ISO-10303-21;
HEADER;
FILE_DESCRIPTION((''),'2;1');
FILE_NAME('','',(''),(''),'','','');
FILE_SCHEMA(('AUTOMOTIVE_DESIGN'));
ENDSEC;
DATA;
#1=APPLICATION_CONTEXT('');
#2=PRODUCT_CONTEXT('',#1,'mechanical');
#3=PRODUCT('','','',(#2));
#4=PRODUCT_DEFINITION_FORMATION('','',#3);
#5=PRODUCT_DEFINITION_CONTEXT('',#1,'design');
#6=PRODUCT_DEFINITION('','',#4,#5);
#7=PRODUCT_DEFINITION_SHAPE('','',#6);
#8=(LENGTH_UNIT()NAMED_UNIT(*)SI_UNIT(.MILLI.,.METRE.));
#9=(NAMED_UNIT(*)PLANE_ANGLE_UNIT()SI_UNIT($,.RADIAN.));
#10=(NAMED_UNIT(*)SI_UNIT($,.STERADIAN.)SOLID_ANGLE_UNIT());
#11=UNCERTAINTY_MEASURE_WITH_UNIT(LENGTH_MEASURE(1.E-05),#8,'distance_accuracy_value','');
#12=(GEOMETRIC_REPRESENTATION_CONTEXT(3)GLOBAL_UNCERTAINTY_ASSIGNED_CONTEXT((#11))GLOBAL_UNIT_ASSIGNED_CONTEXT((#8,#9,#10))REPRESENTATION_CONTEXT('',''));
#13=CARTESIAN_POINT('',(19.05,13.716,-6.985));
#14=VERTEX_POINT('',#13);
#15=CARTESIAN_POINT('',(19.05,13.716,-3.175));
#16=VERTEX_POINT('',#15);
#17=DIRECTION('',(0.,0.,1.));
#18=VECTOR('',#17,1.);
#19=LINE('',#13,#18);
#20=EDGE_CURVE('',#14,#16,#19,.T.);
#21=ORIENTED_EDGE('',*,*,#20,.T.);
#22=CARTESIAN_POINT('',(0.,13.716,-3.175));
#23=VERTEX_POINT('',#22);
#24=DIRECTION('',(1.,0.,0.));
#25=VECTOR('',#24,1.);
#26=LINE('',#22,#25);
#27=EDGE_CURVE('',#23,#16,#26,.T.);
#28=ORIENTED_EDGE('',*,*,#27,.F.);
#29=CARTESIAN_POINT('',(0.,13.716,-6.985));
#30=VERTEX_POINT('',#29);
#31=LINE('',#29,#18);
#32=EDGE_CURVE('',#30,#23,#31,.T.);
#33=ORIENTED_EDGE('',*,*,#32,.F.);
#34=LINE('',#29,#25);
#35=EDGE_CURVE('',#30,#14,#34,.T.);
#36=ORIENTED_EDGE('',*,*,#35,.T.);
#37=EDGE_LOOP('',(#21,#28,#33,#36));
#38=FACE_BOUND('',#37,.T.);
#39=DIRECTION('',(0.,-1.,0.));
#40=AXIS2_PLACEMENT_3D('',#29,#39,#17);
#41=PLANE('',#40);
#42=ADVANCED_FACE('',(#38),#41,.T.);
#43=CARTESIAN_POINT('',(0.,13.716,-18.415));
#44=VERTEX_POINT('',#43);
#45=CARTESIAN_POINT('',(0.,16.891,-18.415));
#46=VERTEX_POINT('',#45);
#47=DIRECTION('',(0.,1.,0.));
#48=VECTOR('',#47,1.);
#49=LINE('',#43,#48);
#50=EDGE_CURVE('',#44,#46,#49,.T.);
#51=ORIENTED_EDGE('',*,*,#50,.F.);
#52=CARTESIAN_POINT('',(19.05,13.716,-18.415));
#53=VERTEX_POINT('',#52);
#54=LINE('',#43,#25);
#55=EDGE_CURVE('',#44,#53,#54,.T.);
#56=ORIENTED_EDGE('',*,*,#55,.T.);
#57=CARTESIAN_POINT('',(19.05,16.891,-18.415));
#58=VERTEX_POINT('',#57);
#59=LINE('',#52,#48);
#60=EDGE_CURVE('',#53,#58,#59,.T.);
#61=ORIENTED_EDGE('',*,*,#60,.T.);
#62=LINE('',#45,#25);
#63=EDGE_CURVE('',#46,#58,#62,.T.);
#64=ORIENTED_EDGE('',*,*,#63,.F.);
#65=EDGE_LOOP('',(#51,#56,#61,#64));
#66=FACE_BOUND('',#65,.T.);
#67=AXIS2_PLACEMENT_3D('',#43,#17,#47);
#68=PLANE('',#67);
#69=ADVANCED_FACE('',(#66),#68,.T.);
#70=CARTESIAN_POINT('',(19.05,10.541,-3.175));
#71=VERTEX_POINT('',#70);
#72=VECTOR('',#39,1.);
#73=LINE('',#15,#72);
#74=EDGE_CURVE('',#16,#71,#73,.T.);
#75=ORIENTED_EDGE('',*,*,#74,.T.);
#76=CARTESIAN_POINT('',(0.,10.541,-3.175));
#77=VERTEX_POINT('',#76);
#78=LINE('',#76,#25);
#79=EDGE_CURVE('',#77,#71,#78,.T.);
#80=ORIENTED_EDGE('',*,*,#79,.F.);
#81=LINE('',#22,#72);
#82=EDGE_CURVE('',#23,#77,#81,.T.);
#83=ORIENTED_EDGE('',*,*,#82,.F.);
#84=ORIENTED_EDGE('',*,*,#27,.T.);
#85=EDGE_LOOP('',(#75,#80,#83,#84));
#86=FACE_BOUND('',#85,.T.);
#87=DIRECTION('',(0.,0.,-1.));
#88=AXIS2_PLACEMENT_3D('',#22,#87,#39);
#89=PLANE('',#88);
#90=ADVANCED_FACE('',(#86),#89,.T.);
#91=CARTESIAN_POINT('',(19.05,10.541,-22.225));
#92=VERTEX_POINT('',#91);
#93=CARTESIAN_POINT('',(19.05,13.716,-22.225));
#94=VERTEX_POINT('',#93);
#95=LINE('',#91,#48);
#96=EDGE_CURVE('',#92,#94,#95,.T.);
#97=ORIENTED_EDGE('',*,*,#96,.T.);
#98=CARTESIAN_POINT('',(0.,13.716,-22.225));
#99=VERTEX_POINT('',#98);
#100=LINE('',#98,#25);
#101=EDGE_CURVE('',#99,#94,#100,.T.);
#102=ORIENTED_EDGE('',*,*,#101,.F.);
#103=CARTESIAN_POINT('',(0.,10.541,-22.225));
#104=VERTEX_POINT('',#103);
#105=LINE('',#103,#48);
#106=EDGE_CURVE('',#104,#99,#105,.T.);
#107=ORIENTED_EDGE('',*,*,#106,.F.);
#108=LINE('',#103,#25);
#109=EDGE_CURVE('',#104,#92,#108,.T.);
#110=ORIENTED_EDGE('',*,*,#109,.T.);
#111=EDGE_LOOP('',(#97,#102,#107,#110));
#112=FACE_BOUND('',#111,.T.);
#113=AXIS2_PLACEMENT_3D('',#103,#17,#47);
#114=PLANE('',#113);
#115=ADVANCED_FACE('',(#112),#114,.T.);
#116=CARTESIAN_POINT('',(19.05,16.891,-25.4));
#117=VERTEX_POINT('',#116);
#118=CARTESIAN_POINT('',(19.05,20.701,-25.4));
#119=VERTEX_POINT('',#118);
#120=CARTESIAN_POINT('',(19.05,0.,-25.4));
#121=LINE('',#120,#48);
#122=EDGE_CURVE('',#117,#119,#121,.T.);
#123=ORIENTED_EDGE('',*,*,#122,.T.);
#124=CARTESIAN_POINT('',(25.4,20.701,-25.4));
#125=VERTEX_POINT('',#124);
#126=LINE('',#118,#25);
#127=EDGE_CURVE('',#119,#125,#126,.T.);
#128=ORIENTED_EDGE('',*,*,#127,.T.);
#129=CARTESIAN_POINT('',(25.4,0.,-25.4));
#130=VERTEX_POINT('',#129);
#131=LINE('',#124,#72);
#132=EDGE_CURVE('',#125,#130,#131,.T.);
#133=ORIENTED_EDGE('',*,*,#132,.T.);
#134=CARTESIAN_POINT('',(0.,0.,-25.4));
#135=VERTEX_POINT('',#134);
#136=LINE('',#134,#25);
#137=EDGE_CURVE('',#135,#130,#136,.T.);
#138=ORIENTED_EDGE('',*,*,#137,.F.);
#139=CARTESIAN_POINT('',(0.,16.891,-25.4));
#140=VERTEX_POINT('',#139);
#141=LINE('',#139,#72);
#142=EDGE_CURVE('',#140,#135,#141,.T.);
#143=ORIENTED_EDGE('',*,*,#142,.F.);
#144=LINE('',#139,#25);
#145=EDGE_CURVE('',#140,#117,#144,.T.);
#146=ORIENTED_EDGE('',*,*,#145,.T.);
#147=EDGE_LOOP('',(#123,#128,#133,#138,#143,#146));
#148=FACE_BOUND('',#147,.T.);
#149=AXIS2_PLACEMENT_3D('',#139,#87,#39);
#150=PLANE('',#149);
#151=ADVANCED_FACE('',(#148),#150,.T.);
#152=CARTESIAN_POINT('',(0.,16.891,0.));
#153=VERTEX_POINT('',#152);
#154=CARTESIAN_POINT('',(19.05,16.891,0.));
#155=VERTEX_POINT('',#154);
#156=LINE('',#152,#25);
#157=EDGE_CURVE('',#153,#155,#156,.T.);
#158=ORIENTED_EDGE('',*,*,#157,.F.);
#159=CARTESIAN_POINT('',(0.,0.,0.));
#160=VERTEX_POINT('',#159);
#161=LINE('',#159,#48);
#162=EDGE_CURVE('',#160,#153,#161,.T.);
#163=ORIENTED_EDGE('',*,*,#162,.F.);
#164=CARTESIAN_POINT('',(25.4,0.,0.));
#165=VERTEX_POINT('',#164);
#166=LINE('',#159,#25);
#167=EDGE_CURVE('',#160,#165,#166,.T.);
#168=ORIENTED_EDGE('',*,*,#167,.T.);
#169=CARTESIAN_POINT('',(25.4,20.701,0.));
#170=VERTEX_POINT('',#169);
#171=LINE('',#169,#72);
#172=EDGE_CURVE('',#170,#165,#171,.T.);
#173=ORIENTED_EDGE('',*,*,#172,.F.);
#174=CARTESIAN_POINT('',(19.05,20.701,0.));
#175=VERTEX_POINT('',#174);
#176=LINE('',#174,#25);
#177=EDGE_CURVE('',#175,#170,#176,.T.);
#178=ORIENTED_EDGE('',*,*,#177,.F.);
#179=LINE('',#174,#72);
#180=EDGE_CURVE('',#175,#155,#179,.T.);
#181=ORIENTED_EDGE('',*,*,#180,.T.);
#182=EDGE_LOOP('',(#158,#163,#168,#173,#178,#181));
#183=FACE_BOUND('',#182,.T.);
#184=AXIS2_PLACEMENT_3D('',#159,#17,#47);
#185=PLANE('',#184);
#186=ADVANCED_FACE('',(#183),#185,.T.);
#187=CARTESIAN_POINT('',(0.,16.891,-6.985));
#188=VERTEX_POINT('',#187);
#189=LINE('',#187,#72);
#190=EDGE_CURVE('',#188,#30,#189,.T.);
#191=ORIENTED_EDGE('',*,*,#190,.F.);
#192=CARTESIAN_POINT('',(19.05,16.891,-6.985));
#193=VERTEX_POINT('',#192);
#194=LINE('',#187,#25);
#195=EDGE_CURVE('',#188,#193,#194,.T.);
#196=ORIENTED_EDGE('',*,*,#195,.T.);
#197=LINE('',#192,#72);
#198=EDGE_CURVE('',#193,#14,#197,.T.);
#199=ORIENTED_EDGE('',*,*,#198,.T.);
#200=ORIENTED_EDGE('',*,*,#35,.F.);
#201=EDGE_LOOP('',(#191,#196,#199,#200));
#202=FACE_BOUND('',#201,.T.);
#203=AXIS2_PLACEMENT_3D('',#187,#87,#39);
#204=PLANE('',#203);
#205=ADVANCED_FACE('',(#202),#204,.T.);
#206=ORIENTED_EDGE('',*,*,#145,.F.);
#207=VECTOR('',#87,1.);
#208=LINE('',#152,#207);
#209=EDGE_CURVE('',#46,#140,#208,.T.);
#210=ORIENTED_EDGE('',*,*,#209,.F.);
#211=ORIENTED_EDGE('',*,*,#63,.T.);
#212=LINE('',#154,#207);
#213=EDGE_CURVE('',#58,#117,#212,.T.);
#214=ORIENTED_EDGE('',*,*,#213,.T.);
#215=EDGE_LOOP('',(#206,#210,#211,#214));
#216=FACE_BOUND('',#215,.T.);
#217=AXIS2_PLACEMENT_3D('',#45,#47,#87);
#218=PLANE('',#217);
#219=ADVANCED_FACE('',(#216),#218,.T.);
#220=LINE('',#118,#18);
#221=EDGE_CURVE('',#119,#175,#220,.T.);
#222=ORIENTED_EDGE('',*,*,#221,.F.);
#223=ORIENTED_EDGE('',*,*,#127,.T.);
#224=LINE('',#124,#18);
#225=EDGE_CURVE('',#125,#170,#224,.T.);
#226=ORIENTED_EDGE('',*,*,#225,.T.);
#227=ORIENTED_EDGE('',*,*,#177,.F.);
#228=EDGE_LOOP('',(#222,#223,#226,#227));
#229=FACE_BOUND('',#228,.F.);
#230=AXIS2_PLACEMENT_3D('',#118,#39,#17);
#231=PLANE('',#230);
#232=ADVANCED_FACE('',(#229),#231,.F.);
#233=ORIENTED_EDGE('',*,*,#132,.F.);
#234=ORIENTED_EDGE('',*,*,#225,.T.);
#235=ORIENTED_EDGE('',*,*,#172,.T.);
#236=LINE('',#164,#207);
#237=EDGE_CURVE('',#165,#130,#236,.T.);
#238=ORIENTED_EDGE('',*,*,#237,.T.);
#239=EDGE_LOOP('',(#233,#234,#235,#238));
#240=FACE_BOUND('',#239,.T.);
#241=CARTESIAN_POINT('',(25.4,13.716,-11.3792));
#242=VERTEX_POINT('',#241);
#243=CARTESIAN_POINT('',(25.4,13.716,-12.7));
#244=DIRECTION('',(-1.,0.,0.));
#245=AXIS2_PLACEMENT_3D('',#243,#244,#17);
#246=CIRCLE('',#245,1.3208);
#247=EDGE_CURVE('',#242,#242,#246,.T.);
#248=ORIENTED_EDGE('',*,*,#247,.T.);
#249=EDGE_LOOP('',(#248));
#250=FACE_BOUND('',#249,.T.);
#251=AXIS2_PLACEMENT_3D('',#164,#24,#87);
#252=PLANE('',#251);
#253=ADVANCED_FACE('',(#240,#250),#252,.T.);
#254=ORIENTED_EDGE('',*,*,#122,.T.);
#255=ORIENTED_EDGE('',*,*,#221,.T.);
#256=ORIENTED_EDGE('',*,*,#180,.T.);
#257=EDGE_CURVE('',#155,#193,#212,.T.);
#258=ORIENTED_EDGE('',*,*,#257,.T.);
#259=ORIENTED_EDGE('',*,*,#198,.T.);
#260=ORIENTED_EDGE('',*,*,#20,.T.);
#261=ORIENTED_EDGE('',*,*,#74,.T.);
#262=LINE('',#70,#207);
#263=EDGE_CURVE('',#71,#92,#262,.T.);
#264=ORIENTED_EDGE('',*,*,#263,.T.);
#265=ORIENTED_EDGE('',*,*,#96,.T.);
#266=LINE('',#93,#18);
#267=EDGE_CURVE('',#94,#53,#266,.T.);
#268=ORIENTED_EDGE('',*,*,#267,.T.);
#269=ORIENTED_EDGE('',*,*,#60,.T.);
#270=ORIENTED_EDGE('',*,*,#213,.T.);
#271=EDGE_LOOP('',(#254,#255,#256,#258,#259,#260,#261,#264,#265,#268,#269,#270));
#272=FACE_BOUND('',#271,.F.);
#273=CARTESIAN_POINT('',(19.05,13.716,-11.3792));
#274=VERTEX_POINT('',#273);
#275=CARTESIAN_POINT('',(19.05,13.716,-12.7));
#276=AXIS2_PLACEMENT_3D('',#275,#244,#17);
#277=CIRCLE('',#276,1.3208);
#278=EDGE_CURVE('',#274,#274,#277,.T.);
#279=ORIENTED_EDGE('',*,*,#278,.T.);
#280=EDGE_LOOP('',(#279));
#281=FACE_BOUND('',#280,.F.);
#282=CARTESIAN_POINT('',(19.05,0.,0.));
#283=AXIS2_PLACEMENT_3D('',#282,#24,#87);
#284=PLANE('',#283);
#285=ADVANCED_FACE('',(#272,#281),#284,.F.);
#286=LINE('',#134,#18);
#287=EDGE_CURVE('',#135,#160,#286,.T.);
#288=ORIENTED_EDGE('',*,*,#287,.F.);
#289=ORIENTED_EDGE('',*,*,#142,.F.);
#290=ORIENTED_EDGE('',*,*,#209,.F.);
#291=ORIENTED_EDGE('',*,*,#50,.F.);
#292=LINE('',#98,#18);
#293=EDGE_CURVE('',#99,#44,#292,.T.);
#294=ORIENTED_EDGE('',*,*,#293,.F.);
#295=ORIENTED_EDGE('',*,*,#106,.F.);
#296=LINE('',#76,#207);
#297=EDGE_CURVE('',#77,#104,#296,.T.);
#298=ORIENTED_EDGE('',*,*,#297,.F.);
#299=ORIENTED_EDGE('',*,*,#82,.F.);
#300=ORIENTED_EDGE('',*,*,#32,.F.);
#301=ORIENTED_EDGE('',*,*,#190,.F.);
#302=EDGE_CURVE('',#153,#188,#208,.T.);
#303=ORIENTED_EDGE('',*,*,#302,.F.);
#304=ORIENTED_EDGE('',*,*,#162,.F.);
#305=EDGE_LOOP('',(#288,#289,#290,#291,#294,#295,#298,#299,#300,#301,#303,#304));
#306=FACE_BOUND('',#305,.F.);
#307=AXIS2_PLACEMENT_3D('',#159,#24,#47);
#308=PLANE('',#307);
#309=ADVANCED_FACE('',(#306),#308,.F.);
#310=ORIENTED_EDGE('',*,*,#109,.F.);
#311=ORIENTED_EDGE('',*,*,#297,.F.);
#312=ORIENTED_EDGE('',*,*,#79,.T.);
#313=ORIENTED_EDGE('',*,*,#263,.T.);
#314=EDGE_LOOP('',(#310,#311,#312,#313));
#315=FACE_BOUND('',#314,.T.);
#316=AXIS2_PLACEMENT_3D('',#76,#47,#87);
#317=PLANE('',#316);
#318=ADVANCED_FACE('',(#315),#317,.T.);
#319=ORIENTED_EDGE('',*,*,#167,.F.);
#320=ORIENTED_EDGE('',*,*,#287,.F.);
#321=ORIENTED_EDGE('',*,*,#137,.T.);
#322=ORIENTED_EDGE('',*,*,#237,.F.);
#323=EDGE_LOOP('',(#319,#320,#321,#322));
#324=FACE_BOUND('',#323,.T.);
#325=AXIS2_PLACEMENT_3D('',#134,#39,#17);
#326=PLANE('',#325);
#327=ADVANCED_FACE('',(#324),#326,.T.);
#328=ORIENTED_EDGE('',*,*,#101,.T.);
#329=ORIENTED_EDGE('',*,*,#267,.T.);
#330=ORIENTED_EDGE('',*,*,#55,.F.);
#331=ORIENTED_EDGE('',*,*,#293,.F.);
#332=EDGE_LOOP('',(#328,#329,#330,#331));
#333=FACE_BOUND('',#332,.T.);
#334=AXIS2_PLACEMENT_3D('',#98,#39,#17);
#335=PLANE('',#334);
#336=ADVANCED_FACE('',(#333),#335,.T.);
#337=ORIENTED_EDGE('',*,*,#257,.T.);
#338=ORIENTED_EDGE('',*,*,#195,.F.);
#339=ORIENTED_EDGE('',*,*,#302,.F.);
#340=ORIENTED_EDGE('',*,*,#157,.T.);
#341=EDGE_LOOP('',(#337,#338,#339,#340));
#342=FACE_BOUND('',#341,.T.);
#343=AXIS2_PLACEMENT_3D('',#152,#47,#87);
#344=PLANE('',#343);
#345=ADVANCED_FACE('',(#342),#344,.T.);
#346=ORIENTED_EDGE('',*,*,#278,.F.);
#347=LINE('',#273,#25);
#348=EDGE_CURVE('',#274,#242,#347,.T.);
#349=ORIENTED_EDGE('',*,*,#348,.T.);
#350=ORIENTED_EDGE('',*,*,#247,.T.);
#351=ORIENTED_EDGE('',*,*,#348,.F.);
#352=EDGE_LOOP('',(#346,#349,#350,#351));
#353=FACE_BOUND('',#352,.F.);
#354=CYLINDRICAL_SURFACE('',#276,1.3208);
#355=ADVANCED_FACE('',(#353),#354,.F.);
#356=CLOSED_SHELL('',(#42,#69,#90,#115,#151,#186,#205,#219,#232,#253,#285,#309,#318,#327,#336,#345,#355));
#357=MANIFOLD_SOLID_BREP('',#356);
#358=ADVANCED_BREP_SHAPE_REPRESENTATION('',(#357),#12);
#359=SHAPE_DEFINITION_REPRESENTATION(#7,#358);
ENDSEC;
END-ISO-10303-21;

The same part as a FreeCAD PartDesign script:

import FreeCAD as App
import Part
import Sketcher
Q = App.Units.Quantity


def add_polygon(sketch, points):
    """Adds a closed chain of lines whose ends are joined by coincident constraints."""
    first, n = sketch.GeometryCount, len(points)
    for a, b in zip(points, points[1:] + points[:1]):
        sketch.addGeometry(Part.LineSegment(App.Vector(*a, 0), App.Vector(*b, 0)), False)
    for i in range(n):
        sketch.addConstraint(Sketcher.Constraint("Coincident", first + i, 2, first + (i + 1) % n, 1))

doc = App.newDocument("Part")
body = doc.addObject("PartDesign::Body", "Body")

# Sketch on YZ plane
sketch1 = body.newObject("Sketcher::SketchObject", "Sketch")
sketch1.AttachmentSupport = (doc.getObject("YZ_Plane"), [""])
sketch1.MapMode = "FlatFace"
add_polygon(sketch1, [(16.9, 0), (0, 0), (0, -25.4), (16.9, -25.4), (16.9, -18.4), (13.7, -18.4), (13.7, -22.2), (10.5, -22.2), (10.5, -3.2), (13.7, -3.2), (13.7, -7), (16.9, -7)])  # lines 0-11
sketch1.addConstraint(Sketcher.Constraint("Horizontal", 0))
sketch1.addConstraint(Sketcher.Constraint("Vertical", 1))
sketch1.addConstraint(Sketcher.Constraint("Horizontal", 2))
sketch1.addConstraint(Sketcher.Constraint("Vertical", 3))
sketch1.addConstraint(Sketcher.Constraint("Horizontal", 4))
sketch1.addConstraint(Sketcher.Constraint("Vertical", 5))
sketch1.addConstraint(Sketcher.Constraint("Horizontal", 6))
sketch1.addConstraint(Sketcher.Constraint("Vertical", 7))
sketch1.addConstraint(Sketcher.Constraint("Horizontal", 8))
sketch1.addConstraint(Sketcher.Constraint("Vertical", 9))
sketch1.addConstraint(Sketcher.Constraint("Horizontal", 10))
sketch1.addConstraint(Sketcher.Constraint("Vertical", 11))
sketch1.addConstraint(Sketcher.Constraint("Coincident", 0, 2, -1, 1))
sketch1.addConstraint(Sketcher.Constraint("Vertical", 5, 2, 8, 2))
sketch1.addConstraint(Sketcher.Constraint("Vertical", 3, 2, 10, 2))
sketch1.addConstraint(Sketcher.Constraint("Equal", 4, 6))
sketch1.addConstraint(Sketcher.Constraint("Equal", 5, 9))
sketch1.addConstraint(Sketcher.Constraint("Equal", 3, 11))
sketch1.addConstraint(Sketcher.Constraint("DistanceY", 1, 2, 1, 1, Q("1 in")))
sketch1.addConstraint(Sketcher.Constraint("DistanceY", 5, 2, 5, 1, Q("0.15 in")))
sketch1.addConstraint(Sketcher.Constraint("DistanceY", 7, 1, 7, 2, Q("0.75 in")))
sketch1.addConstraint(Sketcher.Constraint("DistanceX", 0, 2, 0, 1, Q("0.665 in")))
sketch1.addConstraint(Sketcher.Constraint("DistanceX", 4, 2, 4, 1, Q("0.125 in")))
pad1 = body.newObject("PartDesign::Pad", "Pad")
pad1.Profile = sketch1
pad1.Length = Q("0.75 in")

# Sketch on YZ plane
sketch2 = body.newObject("Sketcher::SketchObject", "Sketch001")
sketch2.AttachmentSupport = (doc.getObject("YZ_Plane"), [""])
sketch2.MapMode = "FlatFace"
sketch2.AttachmentOffset = App.Placement(App.Vector(0, 0, 0.75 * 25.4), App.Rotation())
add_polygon(sketch2, [(21, 0), (0, 0), (0, -25), (21, -25)])  # lines 0-3
sketch2.addConstraint(Sketcher.Constraint("Horizontal", 0))
sketch2.addConstraint(Sketcher.Constraint("Vertical", 1))
sketch2.addConstraint(Sketcher.Constraint("Horizontal", 2))
sketch2.addConstraint(Sketcher.Constraint("Vertical", 3))
sketch2.addConstraint(Sketcher.Constraint("Coincident", 0, 2, -1, 1))
sketch2.addConstraint(Sketcher.Constraint("DistanceY", 1, 2, 1, 1, Q("1 in")))
sketch2.addConstraint(Sketcher.Constraint("DistanceX", 0, 2, 0, 1, Q("0.815 in")))
pad2 = body.newObject("PartDesign::Pad", "Pad001")
pad2.Profile = sketch2
pad2.Length = Q("0.25 in")

# Sketch on YZ plane
sketch3 = body.newObject("Sketcher::SketchObject", "Sketch002")
sketch3.AttachmentSupport = (doc.getObject("YZ_Plane"), [""])
sketch3.MapMode = "FlatFace"
sketch3.AttachmentOffset = App.Placement(App.Vector(0, 0, 0.75 * 25.4), App.Rotation())
sketch3.addGeometry(Part.Circle(App.Vector(13.7, -12.7, 0), App.Vector(0, 0, 1), 1.3), False)
sketch3.addConstraint(Sketcher.Constraint("Diameter", 0, Q("0.104 in")))
sketch3.addConstraint(Sketcher.Constraint("DistanceY", 0, 3, -1, 1, Q("0.5 in")))
sketch3.addConstraint(Sketcher.Constraint("DistanceX", -1, 1, 0, 3, Q("0.54 in")))
pocket1 = body.newObject("PartDesign::Pocket", "Pocket")
pocket1.Profile = sketch3
pocket1.Type = "ThroughAll"
pocket1.Reversed = True

doc.recompute()
